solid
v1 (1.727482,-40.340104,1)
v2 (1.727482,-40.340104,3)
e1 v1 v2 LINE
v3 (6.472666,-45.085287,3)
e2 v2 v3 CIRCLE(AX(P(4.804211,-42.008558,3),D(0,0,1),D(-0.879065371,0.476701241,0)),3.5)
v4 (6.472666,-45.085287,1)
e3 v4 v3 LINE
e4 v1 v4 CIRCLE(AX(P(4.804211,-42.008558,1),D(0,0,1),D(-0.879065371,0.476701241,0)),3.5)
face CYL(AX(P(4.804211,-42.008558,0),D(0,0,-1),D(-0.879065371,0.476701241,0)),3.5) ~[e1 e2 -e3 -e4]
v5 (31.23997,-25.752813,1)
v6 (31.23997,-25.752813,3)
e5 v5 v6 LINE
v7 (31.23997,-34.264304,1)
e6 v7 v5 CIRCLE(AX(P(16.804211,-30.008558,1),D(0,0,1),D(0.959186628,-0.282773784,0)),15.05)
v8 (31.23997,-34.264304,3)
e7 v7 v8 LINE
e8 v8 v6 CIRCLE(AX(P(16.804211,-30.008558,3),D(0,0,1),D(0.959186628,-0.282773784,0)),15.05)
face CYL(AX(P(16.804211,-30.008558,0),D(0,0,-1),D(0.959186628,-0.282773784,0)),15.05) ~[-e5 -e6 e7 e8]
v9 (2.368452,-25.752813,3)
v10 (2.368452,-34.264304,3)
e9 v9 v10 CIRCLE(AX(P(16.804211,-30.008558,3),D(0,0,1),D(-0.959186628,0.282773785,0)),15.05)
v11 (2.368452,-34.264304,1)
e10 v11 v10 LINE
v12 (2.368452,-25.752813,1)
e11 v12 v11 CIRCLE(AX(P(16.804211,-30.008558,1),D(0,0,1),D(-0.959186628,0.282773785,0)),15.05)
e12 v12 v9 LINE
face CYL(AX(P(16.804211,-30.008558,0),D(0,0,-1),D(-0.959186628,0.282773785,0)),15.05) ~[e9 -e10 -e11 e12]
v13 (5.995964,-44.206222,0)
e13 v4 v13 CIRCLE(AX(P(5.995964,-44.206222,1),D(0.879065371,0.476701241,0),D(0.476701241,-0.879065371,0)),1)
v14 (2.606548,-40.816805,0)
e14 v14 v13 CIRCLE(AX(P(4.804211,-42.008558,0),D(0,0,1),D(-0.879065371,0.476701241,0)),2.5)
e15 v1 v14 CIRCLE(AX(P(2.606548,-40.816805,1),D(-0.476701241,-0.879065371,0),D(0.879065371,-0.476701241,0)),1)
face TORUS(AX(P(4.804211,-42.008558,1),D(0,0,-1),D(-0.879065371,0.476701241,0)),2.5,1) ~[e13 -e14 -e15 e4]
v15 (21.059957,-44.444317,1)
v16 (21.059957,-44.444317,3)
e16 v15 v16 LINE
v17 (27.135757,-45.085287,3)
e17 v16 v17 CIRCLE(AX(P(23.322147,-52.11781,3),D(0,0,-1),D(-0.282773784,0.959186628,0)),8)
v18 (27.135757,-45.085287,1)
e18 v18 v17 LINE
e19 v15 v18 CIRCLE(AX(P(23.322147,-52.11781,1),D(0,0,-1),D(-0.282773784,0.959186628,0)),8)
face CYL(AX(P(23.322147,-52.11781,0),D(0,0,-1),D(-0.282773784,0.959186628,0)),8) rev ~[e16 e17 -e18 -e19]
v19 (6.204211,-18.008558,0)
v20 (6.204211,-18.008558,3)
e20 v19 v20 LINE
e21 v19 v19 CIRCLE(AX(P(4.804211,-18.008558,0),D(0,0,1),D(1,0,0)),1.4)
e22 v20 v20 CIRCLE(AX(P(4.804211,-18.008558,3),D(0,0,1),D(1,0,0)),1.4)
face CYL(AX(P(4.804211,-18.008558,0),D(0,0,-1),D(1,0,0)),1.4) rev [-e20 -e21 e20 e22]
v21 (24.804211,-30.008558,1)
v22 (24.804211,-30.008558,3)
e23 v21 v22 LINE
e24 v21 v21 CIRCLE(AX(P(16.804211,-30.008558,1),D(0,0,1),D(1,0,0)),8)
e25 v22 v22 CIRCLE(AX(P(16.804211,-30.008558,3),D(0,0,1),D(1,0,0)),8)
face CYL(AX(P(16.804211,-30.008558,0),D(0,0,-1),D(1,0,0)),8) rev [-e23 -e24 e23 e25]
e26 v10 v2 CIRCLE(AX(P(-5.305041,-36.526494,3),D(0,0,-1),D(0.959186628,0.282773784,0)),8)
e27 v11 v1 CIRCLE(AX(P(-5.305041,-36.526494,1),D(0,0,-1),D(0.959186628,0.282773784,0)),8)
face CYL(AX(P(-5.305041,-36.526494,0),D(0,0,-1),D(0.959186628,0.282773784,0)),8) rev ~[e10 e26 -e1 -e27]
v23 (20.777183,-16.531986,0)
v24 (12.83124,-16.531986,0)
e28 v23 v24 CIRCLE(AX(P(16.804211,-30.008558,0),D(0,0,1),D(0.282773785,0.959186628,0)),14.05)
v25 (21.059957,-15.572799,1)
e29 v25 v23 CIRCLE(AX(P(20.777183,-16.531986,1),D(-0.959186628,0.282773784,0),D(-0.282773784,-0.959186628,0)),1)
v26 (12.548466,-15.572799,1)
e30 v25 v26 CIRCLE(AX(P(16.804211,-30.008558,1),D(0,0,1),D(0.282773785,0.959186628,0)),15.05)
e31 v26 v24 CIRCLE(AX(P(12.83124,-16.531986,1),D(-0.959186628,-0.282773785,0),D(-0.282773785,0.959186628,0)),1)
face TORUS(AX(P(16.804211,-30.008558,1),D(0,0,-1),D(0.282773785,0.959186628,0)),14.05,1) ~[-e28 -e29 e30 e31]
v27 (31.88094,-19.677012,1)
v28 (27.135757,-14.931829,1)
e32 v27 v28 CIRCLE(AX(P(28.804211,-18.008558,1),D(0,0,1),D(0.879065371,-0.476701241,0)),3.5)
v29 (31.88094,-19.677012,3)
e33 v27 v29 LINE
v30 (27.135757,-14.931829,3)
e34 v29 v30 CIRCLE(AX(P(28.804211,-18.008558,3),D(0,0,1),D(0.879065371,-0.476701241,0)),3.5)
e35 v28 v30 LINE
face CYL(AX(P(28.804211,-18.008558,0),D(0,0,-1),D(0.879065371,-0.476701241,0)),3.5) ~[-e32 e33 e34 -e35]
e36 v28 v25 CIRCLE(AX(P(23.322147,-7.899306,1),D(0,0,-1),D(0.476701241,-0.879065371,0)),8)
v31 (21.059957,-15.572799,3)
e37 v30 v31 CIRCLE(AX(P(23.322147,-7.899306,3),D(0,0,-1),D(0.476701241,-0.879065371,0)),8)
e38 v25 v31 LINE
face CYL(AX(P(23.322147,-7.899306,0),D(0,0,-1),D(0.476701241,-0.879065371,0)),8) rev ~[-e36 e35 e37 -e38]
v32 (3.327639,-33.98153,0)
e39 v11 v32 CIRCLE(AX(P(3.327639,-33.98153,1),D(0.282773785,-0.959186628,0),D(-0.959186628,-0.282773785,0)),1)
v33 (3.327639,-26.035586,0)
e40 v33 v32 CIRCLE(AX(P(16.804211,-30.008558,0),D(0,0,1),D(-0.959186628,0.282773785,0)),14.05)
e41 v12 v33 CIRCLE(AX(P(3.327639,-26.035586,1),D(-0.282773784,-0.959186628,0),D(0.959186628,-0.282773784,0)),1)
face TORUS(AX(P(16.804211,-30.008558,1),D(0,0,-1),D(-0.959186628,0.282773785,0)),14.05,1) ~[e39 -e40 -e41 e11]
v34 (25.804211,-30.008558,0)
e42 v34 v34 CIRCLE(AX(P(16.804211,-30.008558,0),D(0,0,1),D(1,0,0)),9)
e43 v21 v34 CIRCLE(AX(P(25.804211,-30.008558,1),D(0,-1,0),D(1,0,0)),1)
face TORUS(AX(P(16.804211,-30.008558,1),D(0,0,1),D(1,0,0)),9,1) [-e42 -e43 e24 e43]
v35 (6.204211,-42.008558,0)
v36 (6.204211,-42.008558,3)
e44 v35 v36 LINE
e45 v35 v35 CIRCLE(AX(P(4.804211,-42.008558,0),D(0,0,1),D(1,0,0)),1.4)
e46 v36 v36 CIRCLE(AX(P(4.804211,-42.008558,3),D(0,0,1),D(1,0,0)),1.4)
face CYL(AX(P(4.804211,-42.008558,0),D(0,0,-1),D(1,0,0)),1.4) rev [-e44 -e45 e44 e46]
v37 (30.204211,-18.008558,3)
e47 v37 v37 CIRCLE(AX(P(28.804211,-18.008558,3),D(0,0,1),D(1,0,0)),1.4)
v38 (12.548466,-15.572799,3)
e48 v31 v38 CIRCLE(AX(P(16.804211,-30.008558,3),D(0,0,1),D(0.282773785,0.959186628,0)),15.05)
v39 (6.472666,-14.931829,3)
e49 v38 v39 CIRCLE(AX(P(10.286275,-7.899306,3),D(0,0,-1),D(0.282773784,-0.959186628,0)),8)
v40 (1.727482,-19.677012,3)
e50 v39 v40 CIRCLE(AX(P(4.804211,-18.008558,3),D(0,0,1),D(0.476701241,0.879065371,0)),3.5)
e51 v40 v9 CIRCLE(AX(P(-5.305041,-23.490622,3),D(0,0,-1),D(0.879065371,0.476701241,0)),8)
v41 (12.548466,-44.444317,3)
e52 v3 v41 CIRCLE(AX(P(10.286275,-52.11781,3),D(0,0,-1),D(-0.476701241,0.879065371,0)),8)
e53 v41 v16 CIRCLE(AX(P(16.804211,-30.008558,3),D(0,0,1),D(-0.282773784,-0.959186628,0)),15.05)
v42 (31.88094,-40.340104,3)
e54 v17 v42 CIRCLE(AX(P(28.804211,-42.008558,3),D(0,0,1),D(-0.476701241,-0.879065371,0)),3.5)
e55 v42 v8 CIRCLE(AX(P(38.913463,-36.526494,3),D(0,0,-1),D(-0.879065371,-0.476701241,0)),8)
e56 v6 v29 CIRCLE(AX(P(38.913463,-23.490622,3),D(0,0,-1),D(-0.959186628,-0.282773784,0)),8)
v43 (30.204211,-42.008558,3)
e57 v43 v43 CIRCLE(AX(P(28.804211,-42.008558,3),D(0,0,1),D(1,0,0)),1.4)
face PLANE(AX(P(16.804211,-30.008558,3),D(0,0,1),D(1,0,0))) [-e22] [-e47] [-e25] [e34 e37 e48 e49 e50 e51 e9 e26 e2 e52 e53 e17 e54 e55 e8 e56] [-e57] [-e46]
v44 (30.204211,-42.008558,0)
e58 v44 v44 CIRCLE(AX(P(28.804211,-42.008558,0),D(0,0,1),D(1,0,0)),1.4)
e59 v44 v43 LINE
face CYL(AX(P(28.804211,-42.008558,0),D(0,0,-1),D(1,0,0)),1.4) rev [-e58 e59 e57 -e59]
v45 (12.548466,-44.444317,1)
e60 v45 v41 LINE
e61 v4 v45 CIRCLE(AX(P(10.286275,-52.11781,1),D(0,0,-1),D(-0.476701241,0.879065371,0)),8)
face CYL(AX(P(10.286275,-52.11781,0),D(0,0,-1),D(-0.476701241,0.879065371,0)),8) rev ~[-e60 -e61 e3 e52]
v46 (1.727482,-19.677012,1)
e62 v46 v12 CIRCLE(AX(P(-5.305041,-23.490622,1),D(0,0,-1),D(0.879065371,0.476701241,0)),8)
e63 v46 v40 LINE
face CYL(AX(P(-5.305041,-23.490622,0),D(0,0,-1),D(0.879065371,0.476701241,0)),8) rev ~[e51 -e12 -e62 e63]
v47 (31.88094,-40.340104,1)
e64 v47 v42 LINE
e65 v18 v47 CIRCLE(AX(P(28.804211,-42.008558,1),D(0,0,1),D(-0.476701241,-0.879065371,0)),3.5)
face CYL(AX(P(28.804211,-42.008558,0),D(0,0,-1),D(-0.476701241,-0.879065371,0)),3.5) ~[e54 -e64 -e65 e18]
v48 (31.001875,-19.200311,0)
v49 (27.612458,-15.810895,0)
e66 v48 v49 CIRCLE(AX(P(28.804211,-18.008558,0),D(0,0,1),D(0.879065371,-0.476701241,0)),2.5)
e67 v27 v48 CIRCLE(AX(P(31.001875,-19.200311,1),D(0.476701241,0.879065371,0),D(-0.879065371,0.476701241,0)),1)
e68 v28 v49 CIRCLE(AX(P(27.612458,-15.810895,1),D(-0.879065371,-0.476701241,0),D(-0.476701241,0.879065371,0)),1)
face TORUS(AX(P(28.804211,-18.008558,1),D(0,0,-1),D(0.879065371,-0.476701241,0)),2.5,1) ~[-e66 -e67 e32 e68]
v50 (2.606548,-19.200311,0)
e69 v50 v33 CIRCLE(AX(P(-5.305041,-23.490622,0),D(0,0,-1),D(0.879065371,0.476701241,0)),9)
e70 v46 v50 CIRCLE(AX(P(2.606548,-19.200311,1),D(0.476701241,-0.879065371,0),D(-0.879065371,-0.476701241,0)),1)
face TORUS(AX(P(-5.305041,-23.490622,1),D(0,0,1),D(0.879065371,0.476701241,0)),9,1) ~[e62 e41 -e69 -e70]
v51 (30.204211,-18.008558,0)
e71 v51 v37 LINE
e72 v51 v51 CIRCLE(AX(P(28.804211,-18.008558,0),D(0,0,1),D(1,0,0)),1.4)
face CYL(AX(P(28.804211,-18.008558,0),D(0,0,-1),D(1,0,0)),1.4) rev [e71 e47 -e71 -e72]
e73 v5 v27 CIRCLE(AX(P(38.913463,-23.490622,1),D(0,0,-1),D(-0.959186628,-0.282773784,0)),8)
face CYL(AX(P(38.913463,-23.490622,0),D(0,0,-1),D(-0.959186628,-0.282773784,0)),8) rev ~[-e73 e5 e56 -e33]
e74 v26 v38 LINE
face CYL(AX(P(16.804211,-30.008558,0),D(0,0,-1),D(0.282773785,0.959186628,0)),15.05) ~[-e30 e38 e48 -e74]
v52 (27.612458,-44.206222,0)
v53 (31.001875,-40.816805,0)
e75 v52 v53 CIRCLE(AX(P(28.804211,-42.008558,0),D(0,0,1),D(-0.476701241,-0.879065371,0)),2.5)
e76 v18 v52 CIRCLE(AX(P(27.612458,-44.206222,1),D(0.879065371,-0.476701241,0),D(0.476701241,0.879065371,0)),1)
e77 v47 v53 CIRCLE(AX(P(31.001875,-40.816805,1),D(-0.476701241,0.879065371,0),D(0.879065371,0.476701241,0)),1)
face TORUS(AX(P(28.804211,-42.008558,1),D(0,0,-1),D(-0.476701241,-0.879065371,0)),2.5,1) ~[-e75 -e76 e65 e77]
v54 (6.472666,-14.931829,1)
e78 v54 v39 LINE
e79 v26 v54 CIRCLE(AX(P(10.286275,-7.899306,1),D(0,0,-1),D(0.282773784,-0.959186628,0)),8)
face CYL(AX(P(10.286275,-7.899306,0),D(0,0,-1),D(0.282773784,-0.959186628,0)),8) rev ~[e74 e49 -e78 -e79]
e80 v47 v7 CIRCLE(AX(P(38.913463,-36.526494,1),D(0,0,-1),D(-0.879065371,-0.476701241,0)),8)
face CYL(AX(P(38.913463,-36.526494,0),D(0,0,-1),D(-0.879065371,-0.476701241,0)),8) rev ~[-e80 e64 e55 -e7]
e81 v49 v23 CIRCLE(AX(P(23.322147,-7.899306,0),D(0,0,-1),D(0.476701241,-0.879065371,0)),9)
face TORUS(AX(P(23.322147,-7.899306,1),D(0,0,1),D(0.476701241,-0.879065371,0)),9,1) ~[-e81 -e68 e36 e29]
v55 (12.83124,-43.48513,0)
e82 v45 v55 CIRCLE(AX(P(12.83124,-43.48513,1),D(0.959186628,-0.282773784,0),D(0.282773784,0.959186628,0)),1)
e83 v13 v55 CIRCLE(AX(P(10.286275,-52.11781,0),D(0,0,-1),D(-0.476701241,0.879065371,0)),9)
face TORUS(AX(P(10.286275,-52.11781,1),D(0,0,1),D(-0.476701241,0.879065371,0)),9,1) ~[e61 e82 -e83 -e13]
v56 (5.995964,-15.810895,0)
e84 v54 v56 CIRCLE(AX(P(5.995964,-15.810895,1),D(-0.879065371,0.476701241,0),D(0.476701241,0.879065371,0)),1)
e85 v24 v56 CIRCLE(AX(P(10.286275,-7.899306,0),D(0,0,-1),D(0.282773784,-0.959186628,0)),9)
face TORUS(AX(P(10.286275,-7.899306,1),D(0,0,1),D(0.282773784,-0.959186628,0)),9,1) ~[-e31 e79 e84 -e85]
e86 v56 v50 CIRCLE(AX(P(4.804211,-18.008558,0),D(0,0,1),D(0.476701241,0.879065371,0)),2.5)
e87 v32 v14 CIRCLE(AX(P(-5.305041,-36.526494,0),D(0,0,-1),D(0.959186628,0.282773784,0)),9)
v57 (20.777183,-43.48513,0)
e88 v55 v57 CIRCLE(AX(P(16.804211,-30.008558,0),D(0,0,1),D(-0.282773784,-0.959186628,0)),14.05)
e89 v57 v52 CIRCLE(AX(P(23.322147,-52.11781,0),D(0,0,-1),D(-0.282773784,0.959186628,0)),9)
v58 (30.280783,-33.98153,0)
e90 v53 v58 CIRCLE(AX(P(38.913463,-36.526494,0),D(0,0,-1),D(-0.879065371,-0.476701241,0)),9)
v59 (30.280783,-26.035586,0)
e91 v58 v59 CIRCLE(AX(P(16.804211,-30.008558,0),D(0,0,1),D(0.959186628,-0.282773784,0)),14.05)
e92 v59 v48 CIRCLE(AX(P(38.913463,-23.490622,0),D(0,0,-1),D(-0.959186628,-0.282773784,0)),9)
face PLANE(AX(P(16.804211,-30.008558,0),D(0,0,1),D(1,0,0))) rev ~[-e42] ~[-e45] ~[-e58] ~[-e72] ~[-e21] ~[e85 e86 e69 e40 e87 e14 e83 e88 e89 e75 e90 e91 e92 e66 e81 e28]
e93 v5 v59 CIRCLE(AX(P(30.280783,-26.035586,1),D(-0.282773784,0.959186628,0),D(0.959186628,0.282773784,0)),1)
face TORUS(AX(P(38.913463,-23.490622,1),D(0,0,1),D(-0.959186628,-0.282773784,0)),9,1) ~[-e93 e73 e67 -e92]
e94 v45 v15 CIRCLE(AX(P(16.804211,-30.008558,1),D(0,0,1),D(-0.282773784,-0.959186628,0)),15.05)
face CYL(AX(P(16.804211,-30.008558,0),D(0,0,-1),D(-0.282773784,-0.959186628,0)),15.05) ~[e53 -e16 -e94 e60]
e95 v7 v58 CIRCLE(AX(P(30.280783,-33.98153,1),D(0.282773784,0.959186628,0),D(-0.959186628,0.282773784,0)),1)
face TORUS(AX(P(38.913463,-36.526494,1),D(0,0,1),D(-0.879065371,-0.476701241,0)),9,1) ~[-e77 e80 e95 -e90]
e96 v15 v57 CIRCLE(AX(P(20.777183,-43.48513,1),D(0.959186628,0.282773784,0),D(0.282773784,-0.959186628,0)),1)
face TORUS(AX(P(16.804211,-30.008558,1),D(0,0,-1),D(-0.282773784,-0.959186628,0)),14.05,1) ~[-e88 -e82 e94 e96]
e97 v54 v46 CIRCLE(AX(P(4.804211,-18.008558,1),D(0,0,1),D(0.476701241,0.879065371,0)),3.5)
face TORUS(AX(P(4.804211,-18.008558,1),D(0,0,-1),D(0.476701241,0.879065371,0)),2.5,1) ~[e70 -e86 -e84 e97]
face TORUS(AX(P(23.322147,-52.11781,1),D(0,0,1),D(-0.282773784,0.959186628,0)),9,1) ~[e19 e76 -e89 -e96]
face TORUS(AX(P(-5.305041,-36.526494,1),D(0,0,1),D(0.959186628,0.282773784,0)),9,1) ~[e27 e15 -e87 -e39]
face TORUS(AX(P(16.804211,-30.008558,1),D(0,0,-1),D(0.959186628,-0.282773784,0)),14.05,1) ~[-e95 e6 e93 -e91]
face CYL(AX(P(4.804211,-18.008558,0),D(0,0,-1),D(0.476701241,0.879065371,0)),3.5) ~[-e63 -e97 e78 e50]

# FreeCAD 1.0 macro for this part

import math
import FreeCAD as App
import Part
import Sketcher
Q = App.Units.Quantity


def edges_at(feature, points):
    """Names of the edges that pass closest to the given points."""
    edges = feature.Shape.Edges
    near = lambda p: min(range(len(edges)), key=lambda i: edges[i].distToShape(Part.Vertex(*p))[0])
    return sorted({f"Edge{near(p) + 1}" for p in points})

doc = App.newDocument("Part")
params = doc.addObject("Spreadsheet::Sheet", "Params")
for row, (alias, value) in enumerate([
    ("sketch1_diameter", "16 mm"),
    ("sketch1_diameter2", "2.8 mm"),
    ("sketch1_radius", "3.5 mm"),
    ("sketch1_radius2", "15.05 mm"),
    ("pad1_length", "3 mm"),
    ("fillet_radius", "1 mm"),
], start=1):
    params.set(f"A{row}", alias)
    params.set(f"B{row}", "=" + value)
    params.setAlias(f"B{row}", alias)

body = doc.addObject("PartDesign::Body", "Body")

sketch1 = body.newObject("Sketcher::SketchObject", "Sketch")
sketch1.AttachmentSupport = (doc.getObject("XY_Plane"), [""])
sketch1.MapMode = "FlatFace"
sketch1.addGeometry(Part.ArcOfCircle(Part.Circle(App.Vector(16.804211, -30.008558, 0), App.Vector(0, 0, 1), 15.05), math.radians(163.574177), math.radians(196.425823)), False)
sketch1.addGeometry(Part.ArcOfCircle(Part.Circle(App.Vector(-5.305041, -36.526494, 0), App.Vector(0, 0, 1), 8), math.radians(-28.470176), math.radians(16.425823)), False)
sketch1.addGeometry(Part.ArcOfCircle(Part.Circle(App.Vector(4.804211, -42.008558, 0), App.Vector(0, 0, 1), 3.5), math.radians(151.529824), math.radians(298.470176)), False)
sketch1.addGeometry(Part.ArcOfCircle(Part.Circle(App.Vector(10.286275, -52.11781, 0), App.Vector(0, 0, 1), 8), math.radians(73.574177), math.radians(118.470176)), False)
sketch1.addGeometry(Part.ArcOfCircle(Part.Circle(App.Vector(16.804211, -30.008558, 0), App.Vector(0, 0, 1), 15.05), math.radians(-106.425823), math.radians(-73.574177)), False)
sketch1.addGeometry(Part.ArcOfCircle(Part.Circle(App.Vector(23.322147, -52.11781, 0), App.Vector(0, 0, 1), 8), math.radians(61.529824), math.radians(106.425823)), False)
sketch1.addGeometry(Part.ArcOfCircle(Part.Circle(App.Vector(28.804211, -42.008558, 0), App.Vector(0, 0, 1), 3.5), math.radians(-118.470176), math.radians(28.470176)), False)
sketch1.addGeometry(Part.ArcOfCircle(Part.Circle(App.Vector(38.913463, -36.526494, 0), App.Vector(0, 0, 1), 8), math.radians(163.574177), math.radians(208.470176)), False)
sketch1.addGeometry(Part.ArcOfCircle(Part.Circle(App.Vector(16.804211, -30.008558, 0), App.Vector(0, 0, 1), 15.05), math.radians(-16.425823), math.radians(16.425823)), False)
sketch1.addGeometry(Part.ArcOfCircle(Part.Circle(App.Vector(38.913463, -23.490622, 0), App.Vector(0, 0, 1), 8), math.radians(151.529824), math.radians(196.425823)), False)
sketch1.addGeometry(Part.ArcOfCircle(Part.Circle(App.Vector(28.804211, -18.008558, 0), App.Vector(0, 0, 1), 3.5), math.radians(-28.470176), math.radians(118.470176)), False)
sketch1.addGeometry(Part.ArcOfCircle(Part.Circle(App.Vector(23.322147, -7.899306, 0), App.Vector(0, 0, 1), 8), math.radians(-106.425823), math.radians(-61.529824)), False)
sketch1.addGeometry(Part.ArcOfCircle(Part.Circle(App.Vector(16.804211, -30.008558, 0), App.Vector(0, 0, 1), 15.05), math.radians(73.574177), math.radians(106.425823)), False)
sketch1.addGeometry(Part.ArcOfCircle(Part.Circle(App.Vector(10.286275, -7.899306, 0), App.Vector(0, 0, 1), 8), math.radians(-118.470176), math.radians(-73.574177)), False)
sketch1.addGeometry(Part.ArcOfCircle(Part.Circle(App.Vector(4.804211, -18.008558, 0), App.Vector(0, 0, 1), 3.5), math.radians(61.529824), math.radians(208.470176)), False)
sketch1.addGeometry(Part.ArcOfCircle(Part.Circle(App.Vector(-5.305041, -23.490622, 0), App.Vector(0, 0, 1), 8), math.radians(-16.425823), math.radians(28.470176)), False)
sketch1.addGeometry(Part.Circle(App.Vector(4.804211, -42.008558, 0), App.Vector(0, 0, 1), 1.4), False)
sketch1.addGeometry(Part.Circle(App.Vector(28.804211, -42.008558, 0), App.Vector(0, 0, 1), 1.4), False)
sketch1.addGeometry(Part.Circle(App.Vector(16.804211, -30.008558, 0), App.Vector(0, 0, 1), 8), False)
sketch1.addGeometry(Part.Circle(App.Vector(4.804211, -18.008558, 0), App.Vector(0, 0, 1), 1.4), False)
sketch1.addGeometry(Part.Circle(App.Vector(28.804211, -18.008558, 0), App.Vector(0, 0, 1), 1.4), False)
sketch1.addConstraint(Sketcher.Constraint("Tangent", 0, 2, 1, 2))
sketch1.addConstraint(Sketcher.Constraint("Tangent", 1, 1, 2, 1))
sketch1.addConstraint(Sketcher.Constraint("Tangent", 2, 2, 3, 2))
sketch1.addConstraint(Sketcher.Constraint("Tangent", 3, 1, 4, 1))
sketch1.addConstraint(Sketcher.Constraint("Tangent", 4, 2, 5, 2))
sketch1.addConstraint(Sketcher.Constraint("Tangent", 5, 1, 6, 1))
sketch1.addConstraint(Sketcher.Constraint("Tangent", 6, 2, 7, 2))
sketch1.addConstraint(Sketcher.Constraint("Tangent", 7, 1, 8, 1))
sketch1.addConstraint(Sketcher.Constraint("Tangent", 8, 2, 9, 2))
sketch1.addConstraint(Sketcher.Constraint("Tangent", 9, 1, 10, 1))
sketch1.addConstraint(Sketcher.Constraint("Tangent", 10, 2, 11, 2))
sketch1.addConstraint(Sketcher.Constraint("Tangent", 11, 1, 12, 1))
sketch1.addConstraint(Sketcher.Constraint("Tangent", 12, 2, 13, 2))
sketch1.addConstraint(Sketcher.Constraint("Tangent", 13, 1, 14, 1))
sketch1.addConstraint(Sketcher.Constraint("Tangent", 14, 2, 15, 2))
sketch1.addConstraint(Sketcher.Constraint("Tangent", 15, 1, 0, 1))
sketch1.addConstraint(Sketcher.Constraint("Coincident", 4, 3, 0, 3))
sketch1.addConstraint(Sketcher.Constraint("Coincident", 8, 3, 0, 3))
sketch1.addConstraint(Sketcher.Constraint("Coincident", 12, 3, 0, 3))
sketch1.addConstraint(Sketcher.Constraint("Coincident", 16, 3, 2, 3))
sketch1.addConstraint(Sketcher.Constraint("Coincident", 17, 3, 6, 3))
sketch1.addConstraint(Sketcher.Constraint("Coincident", 18, 3, 0, 3))
sketch1.addConstraint(Sketcher.Constraint("Coincident", 19, 3, 14, 3))
sketch1.addConstraint(Sketcher.Constraint("Coincident", 20, 3, 10, 3))
sketch1.addConstraint(Sketcher.Constraint("Equal", 1, 3))
sketch1.addConstraint(Sketcher.Constraint("Equal", 0, 4))
sketch1.addConstraint(Sketcher.Constraint("Equal", 3, 5))
sketch1.addConstraint(Sketcher.Constraint("Equal", 2, 6))
sketch1.addConstraint(Sketcher.Constraint("Equal", 5, 7))
sketch1.addConstraint(Sketcher.Constraint("Equal", 4, 8))
sketch1.addConstraint(Sketcher.Constraint("Equal", 7, 9))
sketch1.addConstraint(Sketcher.Constraint("Equal", 6, 10))
sketch1.addConstraint(Sketcher.Constraint("Equal", 9, 11))
sketch1.addConstraint(Sketcher.Constraint("Equal", 8, 12))
sketch1.addConstraint(Sketcher.Constraint("Equal", 11, 13))
sketch1.addConstraint(Sketcher.Constraint("Equal", 10, 14))
sketch1.addConstraint(Sketcher.Constraint("Equal", 13, 15))
sketch1.addConstraint(Sketcher.Constraint("Equal", 16, 17))
sketch1.addConstraint(Sketcher.Constraint("Equal", 15, 18))
sketch1.addConstraint(Sketcher.Constraint("Equal", 17, 19))
sketch1.addConstraint(Sketcher.Constraint("Equal", 19, 20))
sketch1.addConstraint(Sketcher.Constraint("Horizontal", 3, 3, 5, 3))
sketch1.addConstraint(Sketcher.Constraint("Horizontal", 2, 3, 6, 3))
sketch1.addConstraint(Sketcher.Constraint("Horizontal", 11, 3, 13, 3))
sketch1.addConstraint(Sketcher.Constraint("Horizontal", 10, 3, 14, 3))
sketch1.addConstraint(Sketcher.Constraint("Vertical", 7, 3, 9, 3))
sketch1.addConstraint(Sketcher.Constraint("Vertical", 6, 3, 10, 3))
sketch1.addConstraint(Sketcher.Constraint("Diameter", 18, Q("16 mm")))
sketch1.addConstraint(Sketcher.Constraint("Diameter", 16, Q("2.8 mm")))
sketch1.addConstraint(Sketcher.Constraint("Radius", 2, Q("3.5 mm")))
sketch1.addConstraint(Sketcher.Constraint("Radius", 0, Q("15.05 mm")))
sketch1.addConstraint(Sketcher.Constraint("DistanceX", 2, 3, 0, 3, Q("12 mm")))
sketch1.addConstraint(Sketcher.Constraint("DistanceY", 2, 3, 0, 3, Q("12 mm")))
sketch1.addConstraint(Sketcher.Constraint("DistanceY", 11, 1, -1, 1, Q("15.572799 mm")))
sketch1.addConstraint(Sketcher.Constraint("DistanceX", -1, 1, 0, 3, Q("16.804211 mm")))
sketch1.setExpression("Constraints[47]", "Params.sketch1_diameter")
sketch1.setExpression("Constraints[48]", "Params.sketch1_diameter2")
sketch1.setExpression("Constraints[49]", "Params.sketch1_radius")
sketch1.setExpression("Constraints[50]", "Params.sketch1_radius2")
pad1 = body.newObject("PartDesign::Pad", "Pad")
pad1.Profile = sketch1
pad1.setExpression("Length", "Params.pad1_length")
doc.recompute()

fillet = body.newObject("PartDesign::Fillet", "Fillet")
fillet.Base = (pad1, edges_at(pad1, [
    (2.329, -15.534, 0),
    (9.447, -15.855, 0),
    (16.804, -14.959, 0),
    (24.161, -15.855, 0),
    (31.279, -15.534, 0),
    (30.958, -22.651, 0),
    (31.854, -30.009, 0),
    (30.958, -37.366, 0),
    (31.279, -44.483, 0),
    (24.161, -44.162, 0),
    (16.804, -45.059, 0),
    (9.447, -44.162, 0),
    (2.329, -44.483, 0),
    (2.651, -37.366, 0),
    (1.754, -30.009, 0),
    (2.651, -22.651, 0),
    (8.804, -30.009, 0),
]))
fillet.setExpression("Radius", "Params.fillet_radius")

doc.recompute()
